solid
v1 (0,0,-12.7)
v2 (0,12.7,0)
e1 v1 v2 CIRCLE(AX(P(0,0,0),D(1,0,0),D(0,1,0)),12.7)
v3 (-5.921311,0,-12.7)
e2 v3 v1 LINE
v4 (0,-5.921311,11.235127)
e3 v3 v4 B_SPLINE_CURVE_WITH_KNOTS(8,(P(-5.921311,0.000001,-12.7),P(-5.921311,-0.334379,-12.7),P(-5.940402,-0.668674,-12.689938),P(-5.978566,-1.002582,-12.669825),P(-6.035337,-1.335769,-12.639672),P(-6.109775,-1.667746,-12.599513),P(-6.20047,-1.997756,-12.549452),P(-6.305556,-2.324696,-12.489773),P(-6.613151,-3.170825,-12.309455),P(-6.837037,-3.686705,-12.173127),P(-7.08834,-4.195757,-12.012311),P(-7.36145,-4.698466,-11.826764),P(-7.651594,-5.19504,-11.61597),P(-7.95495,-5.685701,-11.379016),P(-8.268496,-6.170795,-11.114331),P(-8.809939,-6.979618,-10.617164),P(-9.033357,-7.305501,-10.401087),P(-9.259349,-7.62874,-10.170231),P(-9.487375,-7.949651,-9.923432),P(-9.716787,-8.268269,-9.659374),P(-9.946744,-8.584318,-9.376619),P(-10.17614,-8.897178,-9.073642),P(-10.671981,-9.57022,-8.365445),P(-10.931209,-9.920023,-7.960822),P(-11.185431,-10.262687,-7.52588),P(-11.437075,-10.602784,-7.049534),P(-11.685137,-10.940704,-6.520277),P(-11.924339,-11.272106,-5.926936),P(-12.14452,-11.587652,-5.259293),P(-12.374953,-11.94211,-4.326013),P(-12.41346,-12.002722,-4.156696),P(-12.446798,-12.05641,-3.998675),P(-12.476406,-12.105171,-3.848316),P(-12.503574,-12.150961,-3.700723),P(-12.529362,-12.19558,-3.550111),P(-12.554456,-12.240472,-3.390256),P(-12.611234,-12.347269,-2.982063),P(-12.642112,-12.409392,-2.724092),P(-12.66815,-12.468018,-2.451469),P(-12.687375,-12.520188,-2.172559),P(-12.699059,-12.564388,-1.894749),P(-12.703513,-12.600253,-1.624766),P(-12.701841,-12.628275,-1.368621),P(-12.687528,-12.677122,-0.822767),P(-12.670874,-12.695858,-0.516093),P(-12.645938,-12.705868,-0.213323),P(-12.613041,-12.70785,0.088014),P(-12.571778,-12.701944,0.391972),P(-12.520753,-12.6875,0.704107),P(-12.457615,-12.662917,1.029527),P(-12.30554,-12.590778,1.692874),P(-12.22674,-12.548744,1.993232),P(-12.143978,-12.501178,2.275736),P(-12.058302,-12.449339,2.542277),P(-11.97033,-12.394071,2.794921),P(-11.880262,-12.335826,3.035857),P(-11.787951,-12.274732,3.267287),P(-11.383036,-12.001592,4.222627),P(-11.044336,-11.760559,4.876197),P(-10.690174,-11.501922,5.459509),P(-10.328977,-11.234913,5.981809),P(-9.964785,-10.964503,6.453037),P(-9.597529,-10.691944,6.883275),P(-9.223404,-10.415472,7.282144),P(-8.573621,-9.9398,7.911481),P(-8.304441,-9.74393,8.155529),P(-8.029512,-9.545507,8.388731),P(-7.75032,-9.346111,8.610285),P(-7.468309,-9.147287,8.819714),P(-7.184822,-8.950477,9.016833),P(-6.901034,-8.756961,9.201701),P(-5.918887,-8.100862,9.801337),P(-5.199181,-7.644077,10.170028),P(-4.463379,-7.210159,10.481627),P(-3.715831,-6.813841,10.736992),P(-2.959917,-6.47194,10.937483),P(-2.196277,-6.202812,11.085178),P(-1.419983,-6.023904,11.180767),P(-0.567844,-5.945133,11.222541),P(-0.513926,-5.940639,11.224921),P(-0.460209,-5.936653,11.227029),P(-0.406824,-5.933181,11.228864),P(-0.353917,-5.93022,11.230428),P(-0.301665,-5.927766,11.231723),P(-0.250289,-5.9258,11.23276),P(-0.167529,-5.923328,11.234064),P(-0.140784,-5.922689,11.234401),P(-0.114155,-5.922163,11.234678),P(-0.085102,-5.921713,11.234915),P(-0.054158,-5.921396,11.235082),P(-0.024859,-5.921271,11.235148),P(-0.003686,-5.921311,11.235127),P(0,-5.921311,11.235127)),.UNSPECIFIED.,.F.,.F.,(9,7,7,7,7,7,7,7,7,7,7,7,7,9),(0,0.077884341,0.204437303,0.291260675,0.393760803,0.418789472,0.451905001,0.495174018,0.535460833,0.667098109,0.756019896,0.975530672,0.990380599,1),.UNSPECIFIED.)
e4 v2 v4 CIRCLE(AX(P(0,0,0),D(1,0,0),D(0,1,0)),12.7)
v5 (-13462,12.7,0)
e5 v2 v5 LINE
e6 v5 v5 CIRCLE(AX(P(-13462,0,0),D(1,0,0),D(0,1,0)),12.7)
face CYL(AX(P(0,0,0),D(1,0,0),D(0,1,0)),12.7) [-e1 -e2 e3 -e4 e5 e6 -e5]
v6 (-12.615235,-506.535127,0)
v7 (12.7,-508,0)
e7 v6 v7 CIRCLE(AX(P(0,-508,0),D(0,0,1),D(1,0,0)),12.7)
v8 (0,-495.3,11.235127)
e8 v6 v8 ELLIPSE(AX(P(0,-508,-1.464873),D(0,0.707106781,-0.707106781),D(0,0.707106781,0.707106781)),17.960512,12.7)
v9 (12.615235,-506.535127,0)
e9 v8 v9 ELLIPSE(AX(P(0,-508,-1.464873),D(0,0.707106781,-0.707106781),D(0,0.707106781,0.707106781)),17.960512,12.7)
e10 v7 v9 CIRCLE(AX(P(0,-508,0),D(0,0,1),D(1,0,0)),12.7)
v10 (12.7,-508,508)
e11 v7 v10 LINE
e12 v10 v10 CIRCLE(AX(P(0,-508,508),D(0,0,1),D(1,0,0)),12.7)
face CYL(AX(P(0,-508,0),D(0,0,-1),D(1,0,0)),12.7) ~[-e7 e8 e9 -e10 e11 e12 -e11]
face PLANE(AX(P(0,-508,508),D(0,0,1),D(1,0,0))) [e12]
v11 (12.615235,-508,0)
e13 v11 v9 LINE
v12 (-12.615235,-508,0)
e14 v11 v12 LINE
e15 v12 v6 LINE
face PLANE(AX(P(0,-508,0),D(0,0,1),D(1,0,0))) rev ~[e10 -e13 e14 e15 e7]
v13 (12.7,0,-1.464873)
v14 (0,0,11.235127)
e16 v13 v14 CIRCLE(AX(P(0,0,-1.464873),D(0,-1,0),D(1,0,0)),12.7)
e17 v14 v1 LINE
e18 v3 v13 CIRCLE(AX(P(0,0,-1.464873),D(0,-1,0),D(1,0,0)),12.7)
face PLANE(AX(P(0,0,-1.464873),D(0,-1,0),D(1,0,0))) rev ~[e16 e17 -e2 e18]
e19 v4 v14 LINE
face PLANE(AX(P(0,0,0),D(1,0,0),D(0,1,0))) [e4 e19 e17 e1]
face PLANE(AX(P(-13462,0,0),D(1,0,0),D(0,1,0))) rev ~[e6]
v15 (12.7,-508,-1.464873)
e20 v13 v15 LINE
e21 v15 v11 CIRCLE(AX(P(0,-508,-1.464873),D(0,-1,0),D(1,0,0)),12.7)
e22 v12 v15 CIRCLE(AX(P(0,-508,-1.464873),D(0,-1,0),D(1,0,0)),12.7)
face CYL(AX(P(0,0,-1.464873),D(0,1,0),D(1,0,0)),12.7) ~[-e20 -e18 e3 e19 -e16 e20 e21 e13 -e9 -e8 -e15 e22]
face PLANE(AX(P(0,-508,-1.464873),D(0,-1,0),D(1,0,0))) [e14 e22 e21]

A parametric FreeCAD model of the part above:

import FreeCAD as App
import Part
import Sketcher

V = App.Vector
Q = App.Units.Quantity

doc = App.newDocument("Part")
body = doc.addObject("PartDesign::Body", "Body")

# Sketch on YZ plane
sketch1 = doc.addObject("Sketcher::SketchObject", "Sketch")
body.addObject(sketch1)
sketch1.AttachmentSupport = (doc.YZ_Plane, [""])
sketch1.MapMode = "FlatFace"
sketch1.addGeometry(Part.Circle(V(0, 0, 0), V(0, 0, 1), 13), False)
sketch1.addConstraint([
    Sketcher.Constraint("Coincident", 0, 3, -1, 1),
    Sketcher.Constraint("Diameter", 0, Q("1 in")),
])
pad1 = doc.addObject("PartDesign::Pad", "Pad")
body.addObject(pad1)
pad1.Profile = sketch1
pad1.Length = Q("530 in")
pad1.Reversed = True

# Sketch on XZ plane
sketch2 = doc.addObject("Sketcher::SketchObject", "Sketch001")
body.addObject(sketch2)
sketch2.AttachmentSupport = (doc.XZ_Plane, [""])
sketch2.MapMode = "FlatFace"
sketch2.addGeometry(Part.Circle(V(0, -1, 0), V(0, 0, 1), 13), False)
sketch2.addConstraint([
    Sketcher.Constraint("PointOnObject", 0, 3, -2),
    Sketcher.Constraint("Diameter", 0, Q("1 in")),
    Sketcher.Constraint("DistanceY", 0, 3, -1, 1, Q("1.464873 mm")),
])
pad2 = doc.addObject("PartDesign::Pad", "Pad001")
body.addObject(pad2)
pad2.Profile = sketch2
pad2.Length = Q("20 in")

# Sketch on XY plane
sketch3 = doc.addObject("Sketcher::SketchObject", "Sketch002")
body.addObject(sketch3)
sketch3.AttachmentSupport = (doc.XY_Plane, [""])
sketch3.MapMode = "FlatFace"
sketch3.addGeometry(Part.Circle(V(0, -508, 0), V(0, 0, 1), 13), False)
sketch3.addConstraint([
    Sketcher.Constraint("PointOnObject", 0, 3, -2),
    Sketcher.Constraint("Diameter", 0, Q("1 in")),
    Sketcher.Constraint("DistanceY", 0, 3, -1, 1, Q("20 in")),
])
pad3 = doc.addObject("PartDesign::Pad", "Pad002")
body.addObject(pad3)
pad3.Profile = sketch3
pad3.Length = Q("20 in")

doc.recompute()
